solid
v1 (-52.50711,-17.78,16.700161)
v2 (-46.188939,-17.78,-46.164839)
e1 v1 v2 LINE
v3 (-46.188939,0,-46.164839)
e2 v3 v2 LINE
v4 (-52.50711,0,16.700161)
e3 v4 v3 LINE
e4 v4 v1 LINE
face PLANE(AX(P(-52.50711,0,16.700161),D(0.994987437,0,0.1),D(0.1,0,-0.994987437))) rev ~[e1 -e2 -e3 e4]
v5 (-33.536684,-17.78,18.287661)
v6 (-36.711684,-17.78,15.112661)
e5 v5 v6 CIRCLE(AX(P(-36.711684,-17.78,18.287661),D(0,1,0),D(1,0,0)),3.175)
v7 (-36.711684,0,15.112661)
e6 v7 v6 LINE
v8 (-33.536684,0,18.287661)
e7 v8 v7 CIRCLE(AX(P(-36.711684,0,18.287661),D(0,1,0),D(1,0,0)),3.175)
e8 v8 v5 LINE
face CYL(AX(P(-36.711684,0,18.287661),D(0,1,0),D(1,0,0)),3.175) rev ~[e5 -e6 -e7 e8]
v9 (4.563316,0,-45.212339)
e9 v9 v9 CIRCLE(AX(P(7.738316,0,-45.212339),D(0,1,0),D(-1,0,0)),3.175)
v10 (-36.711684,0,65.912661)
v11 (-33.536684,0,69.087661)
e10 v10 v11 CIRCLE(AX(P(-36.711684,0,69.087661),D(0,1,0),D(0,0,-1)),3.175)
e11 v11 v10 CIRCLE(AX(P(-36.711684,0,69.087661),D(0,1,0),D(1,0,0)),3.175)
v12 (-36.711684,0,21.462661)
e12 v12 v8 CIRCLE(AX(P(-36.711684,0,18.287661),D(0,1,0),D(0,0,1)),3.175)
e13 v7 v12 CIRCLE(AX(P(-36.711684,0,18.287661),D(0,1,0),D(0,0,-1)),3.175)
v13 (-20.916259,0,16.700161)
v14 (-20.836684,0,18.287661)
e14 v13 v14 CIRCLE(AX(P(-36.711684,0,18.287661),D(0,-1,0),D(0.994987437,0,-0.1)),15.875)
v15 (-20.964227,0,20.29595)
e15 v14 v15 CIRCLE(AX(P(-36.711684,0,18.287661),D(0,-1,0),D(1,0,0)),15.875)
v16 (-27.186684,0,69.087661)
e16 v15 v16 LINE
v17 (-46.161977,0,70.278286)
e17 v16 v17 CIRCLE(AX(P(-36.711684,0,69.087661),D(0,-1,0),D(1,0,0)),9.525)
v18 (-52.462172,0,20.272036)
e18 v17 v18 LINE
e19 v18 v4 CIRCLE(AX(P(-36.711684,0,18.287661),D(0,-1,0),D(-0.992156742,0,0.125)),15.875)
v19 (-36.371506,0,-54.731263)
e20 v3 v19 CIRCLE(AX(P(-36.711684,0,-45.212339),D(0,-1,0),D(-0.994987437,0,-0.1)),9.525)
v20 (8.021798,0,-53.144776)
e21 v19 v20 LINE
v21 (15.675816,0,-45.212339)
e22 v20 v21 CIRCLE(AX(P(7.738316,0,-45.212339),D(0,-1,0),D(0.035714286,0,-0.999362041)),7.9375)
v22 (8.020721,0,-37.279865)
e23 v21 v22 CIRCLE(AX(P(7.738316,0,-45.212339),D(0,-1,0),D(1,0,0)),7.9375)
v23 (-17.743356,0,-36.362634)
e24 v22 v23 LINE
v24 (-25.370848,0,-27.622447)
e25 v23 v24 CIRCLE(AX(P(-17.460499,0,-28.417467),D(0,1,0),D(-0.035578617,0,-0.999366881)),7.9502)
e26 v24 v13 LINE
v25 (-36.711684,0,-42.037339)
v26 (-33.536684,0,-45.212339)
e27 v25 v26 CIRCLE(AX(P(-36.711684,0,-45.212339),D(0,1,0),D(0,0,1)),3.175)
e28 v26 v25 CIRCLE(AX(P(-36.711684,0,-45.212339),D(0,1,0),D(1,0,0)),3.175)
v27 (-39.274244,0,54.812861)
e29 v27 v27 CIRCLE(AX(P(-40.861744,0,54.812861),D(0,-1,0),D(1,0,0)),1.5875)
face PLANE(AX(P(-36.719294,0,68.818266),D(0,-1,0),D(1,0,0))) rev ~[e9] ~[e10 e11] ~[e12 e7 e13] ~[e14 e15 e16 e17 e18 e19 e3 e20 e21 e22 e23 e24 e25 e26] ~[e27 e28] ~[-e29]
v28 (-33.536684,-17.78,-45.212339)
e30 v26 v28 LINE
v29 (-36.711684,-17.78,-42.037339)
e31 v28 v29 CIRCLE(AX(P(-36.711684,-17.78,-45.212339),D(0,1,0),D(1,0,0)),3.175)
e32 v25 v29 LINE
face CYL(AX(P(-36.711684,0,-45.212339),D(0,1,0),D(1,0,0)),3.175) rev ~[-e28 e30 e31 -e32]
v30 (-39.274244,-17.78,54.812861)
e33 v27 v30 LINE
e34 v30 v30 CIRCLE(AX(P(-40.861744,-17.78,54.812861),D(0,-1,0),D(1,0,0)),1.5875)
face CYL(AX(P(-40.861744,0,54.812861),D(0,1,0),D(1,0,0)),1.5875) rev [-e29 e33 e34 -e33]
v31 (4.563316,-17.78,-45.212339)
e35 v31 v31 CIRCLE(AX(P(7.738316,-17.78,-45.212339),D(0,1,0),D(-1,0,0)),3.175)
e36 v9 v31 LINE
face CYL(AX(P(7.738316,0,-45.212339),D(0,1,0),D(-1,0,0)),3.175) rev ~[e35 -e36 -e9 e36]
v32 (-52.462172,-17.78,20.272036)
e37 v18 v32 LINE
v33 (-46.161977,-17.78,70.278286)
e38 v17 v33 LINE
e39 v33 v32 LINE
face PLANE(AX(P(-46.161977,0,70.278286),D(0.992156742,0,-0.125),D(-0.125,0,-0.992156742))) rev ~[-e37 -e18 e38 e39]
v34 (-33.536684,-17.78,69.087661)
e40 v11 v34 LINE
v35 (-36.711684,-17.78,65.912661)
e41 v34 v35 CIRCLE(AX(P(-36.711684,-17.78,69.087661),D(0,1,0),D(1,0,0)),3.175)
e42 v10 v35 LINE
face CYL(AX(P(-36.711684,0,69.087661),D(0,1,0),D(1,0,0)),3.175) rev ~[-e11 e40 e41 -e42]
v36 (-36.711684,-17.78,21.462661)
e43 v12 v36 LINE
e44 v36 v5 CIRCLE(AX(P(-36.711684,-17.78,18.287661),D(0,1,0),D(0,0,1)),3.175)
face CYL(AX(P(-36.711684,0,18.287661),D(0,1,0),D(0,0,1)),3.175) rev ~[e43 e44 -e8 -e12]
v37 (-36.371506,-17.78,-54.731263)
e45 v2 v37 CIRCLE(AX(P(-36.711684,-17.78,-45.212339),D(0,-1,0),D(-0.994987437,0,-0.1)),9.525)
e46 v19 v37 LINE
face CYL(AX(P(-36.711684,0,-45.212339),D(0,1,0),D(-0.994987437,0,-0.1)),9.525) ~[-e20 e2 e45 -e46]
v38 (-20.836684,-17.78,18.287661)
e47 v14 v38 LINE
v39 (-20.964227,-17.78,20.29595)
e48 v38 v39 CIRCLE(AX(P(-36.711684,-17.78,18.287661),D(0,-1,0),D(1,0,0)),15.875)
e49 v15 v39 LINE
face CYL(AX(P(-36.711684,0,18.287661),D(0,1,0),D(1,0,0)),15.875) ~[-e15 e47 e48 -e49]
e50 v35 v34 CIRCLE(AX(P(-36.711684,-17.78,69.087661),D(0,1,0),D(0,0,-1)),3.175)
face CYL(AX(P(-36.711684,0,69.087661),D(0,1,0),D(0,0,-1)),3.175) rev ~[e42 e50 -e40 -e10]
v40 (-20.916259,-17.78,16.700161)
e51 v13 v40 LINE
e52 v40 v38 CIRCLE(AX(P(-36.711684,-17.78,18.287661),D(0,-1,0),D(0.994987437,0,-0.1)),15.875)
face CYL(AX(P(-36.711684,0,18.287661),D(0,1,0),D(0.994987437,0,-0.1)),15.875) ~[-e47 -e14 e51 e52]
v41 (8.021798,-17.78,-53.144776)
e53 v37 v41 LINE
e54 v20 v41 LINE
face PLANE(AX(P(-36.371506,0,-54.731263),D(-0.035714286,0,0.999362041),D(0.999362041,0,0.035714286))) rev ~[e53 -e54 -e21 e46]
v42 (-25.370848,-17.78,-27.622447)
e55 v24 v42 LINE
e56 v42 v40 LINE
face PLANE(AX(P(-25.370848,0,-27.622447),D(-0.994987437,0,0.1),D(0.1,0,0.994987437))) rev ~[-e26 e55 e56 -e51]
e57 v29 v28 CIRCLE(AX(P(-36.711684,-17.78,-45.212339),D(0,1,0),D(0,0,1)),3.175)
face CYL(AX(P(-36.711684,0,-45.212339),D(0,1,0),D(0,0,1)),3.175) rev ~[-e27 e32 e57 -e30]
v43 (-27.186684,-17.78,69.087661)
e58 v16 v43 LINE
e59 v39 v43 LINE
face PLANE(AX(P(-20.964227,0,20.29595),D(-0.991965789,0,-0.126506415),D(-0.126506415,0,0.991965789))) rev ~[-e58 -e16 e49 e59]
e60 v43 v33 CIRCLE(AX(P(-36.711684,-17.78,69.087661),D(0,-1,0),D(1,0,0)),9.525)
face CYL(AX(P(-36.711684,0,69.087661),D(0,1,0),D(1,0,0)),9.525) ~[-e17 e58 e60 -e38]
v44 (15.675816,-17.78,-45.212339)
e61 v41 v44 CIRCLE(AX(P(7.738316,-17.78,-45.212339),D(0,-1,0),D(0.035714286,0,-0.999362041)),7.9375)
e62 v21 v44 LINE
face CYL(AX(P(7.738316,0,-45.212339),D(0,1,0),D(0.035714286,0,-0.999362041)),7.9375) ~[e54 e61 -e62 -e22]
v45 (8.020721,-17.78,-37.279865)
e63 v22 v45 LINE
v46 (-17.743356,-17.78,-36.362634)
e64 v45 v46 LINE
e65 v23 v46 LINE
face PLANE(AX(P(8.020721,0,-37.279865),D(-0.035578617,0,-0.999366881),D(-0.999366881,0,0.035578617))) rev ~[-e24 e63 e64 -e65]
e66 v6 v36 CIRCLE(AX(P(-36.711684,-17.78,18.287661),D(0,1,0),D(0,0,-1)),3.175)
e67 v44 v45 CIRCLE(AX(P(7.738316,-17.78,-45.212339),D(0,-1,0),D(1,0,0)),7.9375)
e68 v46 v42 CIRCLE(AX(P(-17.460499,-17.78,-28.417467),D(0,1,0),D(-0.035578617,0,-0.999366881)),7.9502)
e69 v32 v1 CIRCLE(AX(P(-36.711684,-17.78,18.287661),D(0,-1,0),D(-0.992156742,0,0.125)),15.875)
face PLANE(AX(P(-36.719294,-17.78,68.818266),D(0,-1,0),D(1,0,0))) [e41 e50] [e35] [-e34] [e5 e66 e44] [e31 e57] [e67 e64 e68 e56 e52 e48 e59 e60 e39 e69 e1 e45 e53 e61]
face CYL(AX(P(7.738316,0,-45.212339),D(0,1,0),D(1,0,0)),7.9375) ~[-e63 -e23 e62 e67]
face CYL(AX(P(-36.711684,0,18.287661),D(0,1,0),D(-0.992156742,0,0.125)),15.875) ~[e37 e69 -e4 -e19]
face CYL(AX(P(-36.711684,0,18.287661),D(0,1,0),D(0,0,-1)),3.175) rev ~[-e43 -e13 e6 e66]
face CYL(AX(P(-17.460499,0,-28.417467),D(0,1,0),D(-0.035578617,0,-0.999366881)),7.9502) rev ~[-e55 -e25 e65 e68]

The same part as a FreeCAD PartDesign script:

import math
import FreeCAD as App
import Part
import Sketcher
from FreeCAD import Vector
Q = App.Units.Quantity

doc = App.newDocument("Part")
body = doc.addObject("PartDesign::Body", "Body")

# Sketch on XZ plane
sketch1 = body.newObject("Sketcher::SketchObject", "Sketch")
sketch1.AttachmentSupport = (doc.getObject("XZ_Plane"), [""])
sketch1.MapMode = "FlatFace"
sketch1.addGeometry([
    Part.ArcOfCircle(Part.Circle(Vector(-36.7, -45.2, 0), Vector(0, 0, 1), 9.5), math.radians(-174), math.radians(-88)),  # 0
    Part.LineSegment(Vector(-36.4, -54.7, 0), Vector(8, -53.1, 0)),  # 1
    Part.ArcOfCircle(Part.Circle(Vector(7.7, -45.2, 0), Vector(0, 0, 1), 7.9), math.radians(-88), math.radians(0)),  # 2
    Part.ArcOfCircle(Part.Circle(Vector(7.7, -45.2, 0), Vector(0, 0, 1), 7.9), math.radians(0), math.radians(88)),  # 3
    Part.LineSegment(Vector(8, -37.3, 0), Vector(-17.7, -36.4, 0)),  # 4
    Part.ArcOfCircle(Part.Circle(Vector(-17.5, -28.4, 0), Vector(0, 0, 1), 8), math.radians(174), math.radians(268)),  # 5
    Part.LineSegment(Vector(-25.4, -27.6, 0), Vector(-20.9, 16.7, 0)),  # 6
    Part.ArcOfCircle(Part.Circle(Vector(-36.7, 18.3, 0), Vector(0, 0, 1), 15.9), math.radians(-5.74), math.radians(0)),  # 7
    Part.ArcOfCircle(Part.Circle(Vector(-36.7, 18.3, 0), Vector(0, 0, 1), 15.9), math.radians(0), math.radians(7.27)),  # 8
    Part.LineSegment(Vector(-21, 20.3, 0), Vector(-27.2, 69.1, 0)),  # 9
    Part.ArcOfCircle(Part.Circle(Vector(-36.7, 69.1, 0), Vector(0, 0, 1), 9.5), math.radians(0), math.radians(173)),  # 10
    Part.LineSegment(Vector(-46.2, 70.3, 0), Vector(-52.5, 20.3, 0)),  # 11
    Part.ArcOfCircle(Part.Circle(Vector(-36.7, 18.3, 0), Vector(0, 0, 1), 15.9), math.radians(172.82), math.radians(185.74)),  # 12
    Part.LineSegment(Vector(-52.5, 16.7, 0), Vector(-46.2, -46.2, 0)),  # 13
    Part.ArcOfCircle(Part.Circle(Vector(-36.7, -45.2, 0), Vector(0, 0, 1), 3.2), math.radians(90), math.radians(360)),  # 14
    Part.ArcOfCircle(Part.Circle(Vector(-36.7, -45.2, 0), Vector(0, 0, 1), 3.2), math.radians(0), math.radians(90)),  # 15
    Part.Circle(Vector(7.7, -45.2, 0), Vector(0, 0, 1), 3.2),  # 16
    Part.ArcOfCircle(Part.Circle(Vector(-36.7, 18.3, 0), Vector(0, 0, 1), 3.2), math.radians(90), math.radians(270)),  # 17
    Part.ArcOfCircle(Part.Circle(Vector(-36.7, 18.3, 0), Vector(0, 0, 1), 3.2), math.radians(0), math.radians(90)),  # 18
    Part.ArcOfCircle(Part.Circle(Vector(-36.7, 18.3, 0), Vector(0, 0, 1), 3.2), math.radians(-90), math.radians(0)),  # 19
    Part.Circle(Vector(-40.9, 54.8, 0), Vector(0, 0, 1), 1.6),  # 20
    Part.ArcOfCircle(Part.Circle(Vector(-36.7, 69.1, 0), Vector(0, 0, 1), 3.2), math.radians(0), math.radians(270)),  # 21
    Part.ArcOfCircle(Part.Circle(Vector(-36.7, 69.1, 0), Vector(0, 0, 1), 3.2), math.radians(-90), math.radians(0)),  # 22
], False)
sketch1.addConstraint([
    Sketcher.Constraint("Tangent", 0, 2, 1, 1),
    Sketcher.Constraint("Tangent", 1, 2, 2, 1),
    Sketcher.Constraint("Tangent", 2, 2, 3, 1),
    Sketcher.Constraint("Tangent", 3, 2, 4, 1),
    Sketcher.Constraint("Tangent", 4, 2, 5, 2),
    Sketcher.Constraint("Tangent", 5, 1, 6, 1),
    Sketcher.Constraint("Tangent", 6, 2, 7, 1),
    Sketcher.Constraint("Tangent", 7, 2, 8, 1),
    Sketcher.Constraint("Tangent", 8, 2, 9, 1),
    Sketcher.Constraint("Coincident", 9, 2, 10, 1),
    Sketcher.Constraint("Tangent", 10, 2, 11, 1),
    Sketcher.Constraint("Tangent", 11, 2, 12, 1),
    Sketcher.Constraint("Tangent", 12, 2, 13, 1),
    Sketcher.Constraint("Tangent", 13, 2, 0, 1),
    Sketcher.Constraint("Tangent", 14, 1, 15, 2),
    Sketcher.Constraint("Coincident", 15, 1, 14, 2),
    Sketcher.Constraint("Tangent", 17, 1, 18, 2),
    Sketcher.Constraint("Tangent", 18, 1, 19, 2),
    Sketcher.Constraint("Tangent", 19, 1, 17, 2),
    Sketcher.Constraint("Tangent", 21, 1, 22, 2),
    Sketcher.Constraint("Coincident", 22, 1, 21, 2),
    Sketcher.Constraint("Coincident", 12, 3, 7, 3),
    Sketcher.Constraint("Coincident", 14, 3, 0, 3),
    Sketcher.Constraint("Coincident", 16, 3, 2, 3),
    Sketcher.Constraint("Coincident", 17, 3, 7, 3),
    Sketcher.Constraint("Coincident", 21, 3, 10, 3),
    Sketcher.Constraint("Equal", 2, 3),
    Sketcher.Constraint("Equal", 7, 8),
    Sketcher.Constraint("Equal", 0, 10),
    Sketcher.Constraint("Equal", 8, 12),
    Sketcher.Constraint("Equal", 15, 16),
    Sketcher.Constraint("Equal", 16, 17),
    Sketcher.Constraint("Equal", 19, 21),
    Sketcher.Constraint("Horizontal", 0, 3, 2, 3),
    Sketcher.Constraint("Horizontal", 16, 3, 2, 2),
    Sketcher.Constraint("Horizontal", 19, 3, 7, 2),
    Sketcher.Constraint("Horizontal", 22, 3, 9, 2),
    Sketcher.Constraint("Horizontal", 6, 2, 12, 2),
    Sketcher.Constraint("Horizontal", 2, 2, 15, 1),
    Sketcher.Constraint("Horizontal", 7, 2, 18, 1),
    Sketcher.Constraint("Horizontal", 9, 2, 21, 1),
    Sketcher.Constraint("Vertical", 0, 3, 7, 3),
    Sketcher.Constraint("Vertical", 8, 3, 10, 3),
    Sketcher.Constraint("Vertical", 22, 3, 14, 1),
    Sketcher.Constraint("Vertical", 14, 1, 17, 1),
    Sketcher.Constraint("Vertical", 17, 1, 19, 1),
    Sketcher.Constraint("Vertical", 19, 1, 22, 1),
    Sketcher.Constraint("Diameter", 16, Q("0.25 in")),
    Sketcher.Constraint("Diameter", 20, Q("0.125 in")),
    Sketcher.Constraint("Radius", 0, Q("0.375 in")),
    Sketcher.Constraint("Radius", 2, Q("0.3125 in")),
    Sketcher.Constraint("Radius", 5, Q("0.313 in")),
    Sketcher.Constraint("Radius", 7, Q("0.625 in")),
    Sketcher.Constraint("DistanceY", 7, 3, 10, 3, Q("2 in")),
    Sketcher.Constraint("DistanceY", 0, 3, 7, 3, Q("2.5 in")),
    Sketcher.Constraint("DistanceX", 0, 3, 2, 3, Q("1.75 in")),
    Sketcher.Constraint("DistanceY", 20, 3, 10, 3, Q("0.562 in")),
    Sketcher.Constraint("Distance", 4, Q("25.780399 mm")),
    Sketcher.Constraint("DistanceX", 5, 3, -1, 1, Q("17.460499 mm")),
    Sketcher.Constraint("DistanceY", 0, 3, -1, 1, Q("45.212339 mm")),
    Sketcher.Constraint("DistanceX", 20, 3, 10, 3, Q("4.15006 mm")),
])
pad1 = body.newObject("PartDesign::Pad", "Pad")
pad1.Profile = sketch1
pad1.Length = Q("0.7 in")

doc.recompute()
